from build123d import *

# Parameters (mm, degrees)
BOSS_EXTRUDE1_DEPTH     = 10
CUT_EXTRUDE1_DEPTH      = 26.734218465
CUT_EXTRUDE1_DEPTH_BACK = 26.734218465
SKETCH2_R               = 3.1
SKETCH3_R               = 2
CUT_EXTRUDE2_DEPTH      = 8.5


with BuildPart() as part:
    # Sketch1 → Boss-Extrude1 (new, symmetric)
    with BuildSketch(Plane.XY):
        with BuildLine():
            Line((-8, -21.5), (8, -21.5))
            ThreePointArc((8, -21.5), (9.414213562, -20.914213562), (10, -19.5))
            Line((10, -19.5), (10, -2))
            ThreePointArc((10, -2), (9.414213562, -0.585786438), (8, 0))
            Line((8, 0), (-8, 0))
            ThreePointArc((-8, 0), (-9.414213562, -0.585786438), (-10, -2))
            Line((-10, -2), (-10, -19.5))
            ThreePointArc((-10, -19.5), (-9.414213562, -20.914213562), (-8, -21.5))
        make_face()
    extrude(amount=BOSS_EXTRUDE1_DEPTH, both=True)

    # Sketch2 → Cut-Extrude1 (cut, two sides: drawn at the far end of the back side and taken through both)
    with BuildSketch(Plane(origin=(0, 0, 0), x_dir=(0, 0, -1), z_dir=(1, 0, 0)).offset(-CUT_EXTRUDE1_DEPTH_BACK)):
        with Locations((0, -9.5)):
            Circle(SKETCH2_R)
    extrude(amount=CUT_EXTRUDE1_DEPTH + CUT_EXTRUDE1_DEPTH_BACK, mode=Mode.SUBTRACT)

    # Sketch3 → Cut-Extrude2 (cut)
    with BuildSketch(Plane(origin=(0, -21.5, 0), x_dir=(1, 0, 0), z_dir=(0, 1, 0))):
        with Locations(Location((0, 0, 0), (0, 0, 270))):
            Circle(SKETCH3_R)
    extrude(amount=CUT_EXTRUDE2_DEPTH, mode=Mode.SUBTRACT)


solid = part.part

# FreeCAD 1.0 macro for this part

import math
import FreeCAD as App
import Part
import Sketcher
from FreeCAD import Vector

doc = App.newDocument("Part")
body = doc.addObject("PartDesign::Body", "Body")

# Sketch on XY plane
sketch1 = body.newObject("Sketcher::SketchObject", "Sketch")
sketch1.AttachmentSupport = (doc.getObject("XY_Plane"), [""])
sketch1.MapMode = "FlatFace"
sketch1.addGeometry([
    Part.LineSegment(Vector(-8, -21.5, 0), Vector(8, -21.5, 0)),  # 0
    Part.ArcOfCircle(Part.Circle(Vector(8, -19.5, 0), Vector(0, 0, 1), 2), math.radians(-90), math.radians(0)),  # 1
    Part.LineSegment(Vector(10, -19.5, 0), Vector(10, -2, 0)),  # 2
    Part.ArcOfCircle(Part.Circle(Vector(8, -2, 0), Vector(0, 0, 1), 2), math.radians(0), math.radians(90)),  # 3
    Part.LineSegment(Vector(8, 0, 0), Vector(-8, 0, 0)),  # 4
    Part.ArcOfCircle(Part.Circle(Vector(-8, -2, 0), Vector(0, 0, 1), 2), math.radians(90), math.radians(180)),  # 5
    Part.LineSegment(Vector(-10, -2, 0), Vector(-10, -19.5, 0)),  # 6
    Part.ArcOfCircle(Part.Circle(Vector(-8, -19.5, 0), Vector(0, 0, 1), 2), math.radians(-180), math.radians(-90)),  # 7
], False)
sketch1.addConstraint([
    Sketcher.Constraint("Tangent", 0, 2, 1, 1),
    Sketcher.Constraint("Tangent", 1, 2, 2, 1),
    Sketcher.Constraint("Tangent", 2, 2, 3, 1),
    Sketcher.Constraint("Tangent", 3, 2, 4, 1),
    Sketcher.Constraint("Tangent", 4, 2, 5, 1),
    Sketcher.Constraint("Tangent", 5, 2, 6, 1),
    Sketcher.Constraint("Tangent", 6, 2, 7, 1),
    Sketcher.Constraint("Tangent", 7, 2, 0, 1),
    Sketcher.Constraint("Horizontal", 0),
    Sketcher.Constraint("Vertical", 2),
    Sketcher.Constraint("Horizontal", 4),
    Sketcher.Constraint("Vertical", 6),
    Sketcher.Constraint("Equal", 1, 3),
    Sketcher.Constraint("Equal", 3, 5),
    Sketcher.Constraint("Equal", 5, 7),
    Sketcher.Constraint("Symmetric", 3, 2, 4, 2, -1, 1),
    Sketcher.Constraint("Radius", 1, 2.0),
    Sketcher.Constraint("DistanceX", 0, 1, 0, 2, 16.0),
    Sketcher.Constraint("DistanceY", 2, 1, 2, 2, 17.5),
])
pad1 = body.newObject("PartDesign::Pad", "Pad")
pad1.Profile = sketch1
pad1.Length = 20
pad1.Midplane = True

# Sketch on YZ plane
sketch2 = body.newObject("Sketcher::SketchObject", "Sketch001")
sketch2.AttachmentSupport = (doc.getObject("YZ_Plane"), [""])
sketch2.MapMode = "FlatFace"
sketch2.addGeometry(Part.Circle(Vector(-9.5, 0, 0), Vector(0, 0, 1), 3.1), False)
sketch2.addConstraint([
    Sketcher.Constraint("PointOnObject", 0, 3, -1),
    Sketcher.Constraint("Diameter", 0, 6.2),
    Sketcher.Constraint("DistanceX", 0, 3, -1, 1, 9.5),
])
pocket1 = body.newObject("PartDesign::Pocket", "Pocket")
pocket1.Profile = sketch2
pocket1.Type = "ThroughAll"
pocket1.Midplane = True

# Sketch on XZ plane
sketch3 = body.newObject("Sketcher::SketchObject", "Sketch002")
sketch3.AttachmentSupport = (doc.getObject("XZ_Plane"), [""])
sketch3.MapMode = "FlatFace"
sketch3.AttachmentOffset = App.Placement(Vector(0, 0, 21.5), App.Rotation())
sketch3.addGeometry(Part.Circle(Vector(0, 0, 0), Vector(0, 0, 1), 2), False)
sketch3.addConstraint([
    Sketcher.Constraint("Coincident", 0, 3, -1, 1),
    Sketcher.Constraint("Diameter", 0, 4.0),
])
pocket2 = body.newObject("PartDesign::Pocket", "Pocket001")
pocket2.Profile = sketch3
pocket2.Length = 8.5

doc.recompute()
